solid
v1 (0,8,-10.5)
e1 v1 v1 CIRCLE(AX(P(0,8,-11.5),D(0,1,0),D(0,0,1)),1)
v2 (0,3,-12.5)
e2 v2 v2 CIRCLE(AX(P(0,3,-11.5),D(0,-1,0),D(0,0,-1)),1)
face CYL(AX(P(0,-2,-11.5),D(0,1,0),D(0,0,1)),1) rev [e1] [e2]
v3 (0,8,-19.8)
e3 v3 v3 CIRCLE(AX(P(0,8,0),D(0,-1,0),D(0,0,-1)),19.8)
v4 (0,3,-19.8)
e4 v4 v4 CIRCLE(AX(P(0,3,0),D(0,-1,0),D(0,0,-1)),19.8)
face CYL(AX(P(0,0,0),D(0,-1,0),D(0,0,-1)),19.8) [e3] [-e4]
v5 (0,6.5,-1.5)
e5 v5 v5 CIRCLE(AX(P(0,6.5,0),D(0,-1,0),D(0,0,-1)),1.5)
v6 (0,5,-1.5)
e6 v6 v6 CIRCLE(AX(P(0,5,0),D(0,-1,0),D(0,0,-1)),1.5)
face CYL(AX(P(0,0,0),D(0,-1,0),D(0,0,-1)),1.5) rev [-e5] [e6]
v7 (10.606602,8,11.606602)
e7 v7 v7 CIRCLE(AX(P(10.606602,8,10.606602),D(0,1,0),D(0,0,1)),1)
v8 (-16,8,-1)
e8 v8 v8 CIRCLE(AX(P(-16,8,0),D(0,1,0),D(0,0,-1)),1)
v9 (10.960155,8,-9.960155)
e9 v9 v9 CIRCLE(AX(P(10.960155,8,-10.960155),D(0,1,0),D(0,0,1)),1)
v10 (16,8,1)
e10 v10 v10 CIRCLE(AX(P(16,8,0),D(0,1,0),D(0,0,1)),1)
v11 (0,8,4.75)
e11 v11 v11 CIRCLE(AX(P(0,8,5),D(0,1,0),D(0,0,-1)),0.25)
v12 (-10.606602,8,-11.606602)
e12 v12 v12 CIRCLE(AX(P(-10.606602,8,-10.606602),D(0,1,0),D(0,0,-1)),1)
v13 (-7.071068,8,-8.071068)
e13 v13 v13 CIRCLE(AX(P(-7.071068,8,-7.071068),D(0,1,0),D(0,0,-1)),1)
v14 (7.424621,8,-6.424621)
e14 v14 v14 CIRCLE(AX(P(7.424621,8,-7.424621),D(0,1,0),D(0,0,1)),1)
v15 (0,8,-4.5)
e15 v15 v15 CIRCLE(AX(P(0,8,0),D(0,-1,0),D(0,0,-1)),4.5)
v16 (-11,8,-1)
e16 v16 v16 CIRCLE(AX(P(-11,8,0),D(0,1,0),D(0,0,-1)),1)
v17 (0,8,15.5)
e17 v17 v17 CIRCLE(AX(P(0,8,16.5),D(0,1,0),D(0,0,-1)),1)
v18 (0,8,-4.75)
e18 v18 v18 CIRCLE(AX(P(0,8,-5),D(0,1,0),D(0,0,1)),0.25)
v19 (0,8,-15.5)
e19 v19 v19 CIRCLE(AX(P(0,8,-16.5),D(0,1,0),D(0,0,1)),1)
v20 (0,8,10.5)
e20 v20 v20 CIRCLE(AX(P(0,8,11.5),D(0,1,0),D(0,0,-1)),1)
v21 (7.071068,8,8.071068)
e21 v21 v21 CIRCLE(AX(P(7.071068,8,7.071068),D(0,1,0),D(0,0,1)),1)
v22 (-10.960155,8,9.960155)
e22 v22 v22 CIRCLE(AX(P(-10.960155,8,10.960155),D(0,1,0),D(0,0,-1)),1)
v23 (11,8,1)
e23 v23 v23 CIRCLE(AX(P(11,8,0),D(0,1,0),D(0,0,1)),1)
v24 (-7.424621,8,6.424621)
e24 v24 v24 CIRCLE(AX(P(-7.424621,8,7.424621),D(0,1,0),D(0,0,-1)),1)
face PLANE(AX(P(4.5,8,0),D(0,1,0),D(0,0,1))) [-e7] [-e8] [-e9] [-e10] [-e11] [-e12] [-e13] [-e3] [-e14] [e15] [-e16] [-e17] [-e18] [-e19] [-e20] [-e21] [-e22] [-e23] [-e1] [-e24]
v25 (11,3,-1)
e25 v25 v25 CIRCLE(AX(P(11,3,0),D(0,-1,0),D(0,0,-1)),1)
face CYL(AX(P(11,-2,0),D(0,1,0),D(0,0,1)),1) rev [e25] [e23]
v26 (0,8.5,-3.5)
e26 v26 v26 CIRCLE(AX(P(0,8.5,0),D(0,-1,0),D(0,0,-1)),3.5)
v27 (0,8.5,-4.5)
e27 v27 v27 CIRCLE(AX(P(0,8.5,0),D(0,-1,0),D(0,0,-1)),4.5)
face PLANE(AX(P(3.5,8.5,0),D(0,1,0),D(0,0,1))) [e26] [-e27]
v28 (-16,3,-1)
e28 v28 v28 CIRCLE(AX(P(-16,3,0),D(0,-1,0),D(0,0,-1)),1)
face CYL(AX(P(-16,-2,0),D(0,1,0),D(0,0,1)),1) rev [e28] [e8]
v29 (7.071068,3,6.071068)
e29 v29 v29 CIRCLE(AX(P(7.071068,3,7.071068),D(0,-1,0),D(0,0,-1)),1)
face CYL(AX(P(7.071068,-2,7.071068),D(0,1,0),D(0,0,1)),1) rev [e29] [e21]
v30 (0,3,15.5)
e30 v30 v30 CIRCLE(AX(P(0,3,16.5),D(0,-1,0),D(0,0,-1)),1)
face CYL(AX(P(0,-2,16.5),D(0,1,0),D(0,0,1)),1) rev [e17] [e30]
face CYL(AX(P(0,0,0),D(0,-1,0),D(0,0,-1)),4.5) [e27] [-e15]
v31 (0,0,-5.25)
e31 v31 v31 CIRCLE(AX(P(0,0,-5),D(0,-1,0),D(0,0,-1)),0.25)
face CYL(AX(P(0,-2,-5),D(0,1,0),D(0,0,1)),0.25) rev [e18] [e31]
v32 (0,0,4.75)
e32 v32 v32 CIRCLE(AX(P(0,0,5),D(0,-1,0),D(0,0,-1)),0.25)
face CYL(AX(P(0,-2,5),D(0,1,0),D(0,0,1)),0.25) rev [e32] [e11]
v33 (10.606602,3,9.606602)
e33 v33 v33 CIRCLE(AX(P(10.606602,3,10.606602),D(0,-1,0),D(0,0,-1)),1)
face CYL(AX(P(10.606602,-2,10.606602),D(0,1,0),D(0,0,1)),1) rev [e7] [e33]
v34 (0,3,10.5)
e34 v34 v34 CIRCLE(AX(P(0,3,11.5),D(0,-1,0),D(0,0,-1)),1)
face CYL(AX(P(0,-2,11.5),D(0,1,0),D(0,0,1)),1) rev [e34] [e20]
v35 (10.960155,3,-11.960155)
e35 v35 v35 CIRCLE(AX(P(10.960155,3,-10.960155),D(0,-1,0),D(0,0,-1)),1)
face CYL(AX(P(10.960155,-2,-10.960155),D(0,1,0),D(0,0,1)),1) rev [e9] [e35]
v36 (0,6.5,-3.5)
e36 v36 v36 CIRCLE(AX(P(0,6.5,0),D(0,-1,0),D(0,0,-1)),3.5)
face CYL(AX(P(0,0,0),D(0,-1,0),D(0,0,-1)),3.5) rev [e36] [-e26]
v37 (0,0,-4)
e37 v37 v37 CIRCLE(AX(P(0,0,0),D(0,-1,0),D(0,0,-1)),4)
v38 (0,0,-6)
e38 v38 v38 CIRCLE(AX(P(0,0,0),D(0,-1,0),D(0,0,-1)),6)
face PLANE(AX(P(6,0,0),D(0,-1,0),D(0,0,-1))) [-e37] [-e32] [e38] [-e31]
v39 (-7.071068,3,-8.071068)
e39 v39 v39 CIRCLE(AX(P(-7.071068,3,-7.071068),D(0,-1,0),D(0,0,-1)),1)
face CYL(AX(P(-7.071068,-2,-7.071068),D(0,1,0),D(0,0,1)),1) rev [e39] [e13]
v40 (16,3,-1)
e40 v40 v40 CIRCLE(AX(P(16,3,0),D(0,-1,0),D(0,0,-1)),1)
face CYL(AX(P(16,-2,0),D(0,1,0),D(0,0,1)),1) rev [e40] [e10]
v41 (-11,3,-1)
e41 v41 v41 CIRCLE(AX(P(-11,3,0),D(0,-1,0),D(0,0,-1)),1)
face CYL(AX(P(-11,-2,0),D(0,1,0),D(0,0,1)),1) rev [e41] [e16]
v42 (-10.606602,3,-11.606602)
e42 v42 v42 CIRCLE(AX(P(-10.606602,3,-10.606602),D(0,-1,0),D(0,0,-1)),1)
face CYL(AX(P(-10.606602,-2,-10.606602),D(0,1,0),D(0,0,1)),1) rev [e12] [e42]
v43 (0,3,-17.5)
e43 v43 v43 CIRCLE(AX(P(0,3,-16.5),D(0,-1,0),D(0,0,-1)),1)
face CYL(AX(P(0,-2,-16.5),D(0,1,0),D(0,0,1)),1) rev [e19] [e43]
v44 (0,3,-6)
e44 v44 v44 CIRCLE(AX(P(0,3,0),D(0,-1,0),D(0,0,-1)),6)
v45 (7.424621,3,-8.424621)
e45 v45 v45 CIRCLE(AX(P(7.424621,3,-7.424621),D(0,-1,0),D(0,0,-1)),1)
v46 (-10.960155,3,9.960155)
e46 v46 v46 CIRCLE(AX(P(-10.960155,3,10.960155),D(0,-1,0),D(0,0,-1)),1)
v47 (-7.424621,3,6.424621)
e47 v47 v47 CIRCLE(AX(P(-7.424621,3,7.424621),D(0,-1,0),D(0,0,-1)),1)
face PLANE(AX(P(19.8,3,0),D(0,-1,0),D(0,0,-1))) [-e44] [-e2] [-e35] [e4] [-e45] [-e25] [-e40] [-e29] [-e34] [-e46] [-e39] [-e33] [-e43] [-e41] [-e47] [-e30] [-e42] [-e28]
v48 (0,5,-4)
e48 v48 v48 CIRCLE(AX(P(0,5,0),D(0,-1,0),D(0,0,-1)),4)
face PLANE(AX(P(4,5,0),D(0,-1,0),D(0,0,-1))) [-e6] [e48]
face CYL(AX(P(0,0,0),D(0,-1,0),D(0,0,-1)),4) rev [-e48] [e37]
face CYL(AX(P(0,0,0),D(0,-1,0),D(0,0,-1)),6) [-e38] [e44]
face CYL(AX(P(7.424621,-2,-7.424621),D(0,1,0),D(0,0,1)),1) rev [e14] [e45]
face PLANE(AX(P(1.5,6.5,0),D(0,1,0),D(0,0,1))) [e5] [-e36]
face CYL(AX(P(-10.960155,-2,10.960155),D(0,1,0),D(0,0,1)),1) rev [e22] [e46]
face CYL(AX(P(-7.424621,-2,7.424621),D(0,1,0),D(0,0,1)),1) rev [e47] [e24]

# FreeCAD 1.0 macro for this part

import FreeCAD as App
import Part
import Sketcher
from FreeCAD import Vector

doc = App.newDocument("Part")
body = doc.addObject("PartDesign::Body", "Body")

# Sketch on XY plane
sketch1 = doc.addObject("Sketcher::SketchObject", "Sketch")
body.addObject(sketch1)
sketch1.AttachmentSupport = (doc.XY_Plane, [""])
sketch1.MapMode = "FlatFace"
sketch1.addGeometry([
    Part.LineSegment(Vector(4, 5, 0), Vector(4, 0, 0)),  # 0
    Part.LineSegment(Vector(4, 0, 0), Vector(6, 0, 0)),  # 1
    Part.LineSegment(Vector(6, 0, 0), Vector(6, 3, 0)),  # 2
    Part.LineSegment(Vector(6, 3, 0), Vector(19.8, 3, 0)),  # 3
    Part.LineSegment(Vector(19.8, 3, 0), Vector(19.8, 8, 0)),  # 4
    Part.LineSegment(Vector(19.8, 8, 0), Vector(4.5, 8, 0)),  # 5
    Part.LineSegment(Vector(4.5, 8, 0), Vector(4.5, 8.5, 0)),  # 6
    Part.LineSegment(Vector(4.5, 8.5, 0), Vector(3.5, 8.5, 0)),  # 7
    Part.LineSegment(Vector(3.5, 8.5, 0), Vector(3.5, 6.5, 0)),  # 8
    Part.LineSegment(Vector(3.5, 6.5, 0), Vector(1.5, 6.5, 0)),  # 9
    Part.LineSegment(Vector(1.5, 6.5, 0), Vector(1.5, 5, 0)),  # 10
    Part.LineSegment(Vector(1.5, 5, 0), Vector(4, 5, 0)),  # 11
], False)
sketch1.addConstraint([
    Sketcher.Constraint("Coincident", 0, 2, 1, 1),
    Sketcher.Constraint("Coincident", 1, 2, 2, 1),
    Sketcher.Constraint("Coincident", 2, 2, 3, 1),
    Sketcher.Constraint("Coincident", 3, 2, 4, 1),
    Sketcher.Constraint("Coincident", 4, 2, 5, 1),
    Sketcher.Constraint("Coincident", 5, 2, 6, 1),
    Sketcher.Constraint("Coincident", 6, 2, 7, 1),
    Sketcher.Constraint("Coincident", 7, 2, 8, 1),
    Sketcher.Constraint("Coincident", 8, 2, 9, 1),
    Sketcher.Constraint("Coincident", 9, 2, 10, 1),
    Sketcher.Constraint("Coincident", 10, 2, 11, 1),
    Sketcher.Constraint("Coincident", 11, 2, 0, 1),
    Sketcher.Constraint("Vertical", 0),
    Sketcher.Constraint("Horizontal", 1),
    Sketcher.Constraint("Vertical", 2),
    Sketcher.Constraint("Horizontal", 3),
    Sketcher.Constraint("Vertical", 4),
    Sketcher.Constraint("Horizontal", 5),
    Sketcher.Constraint("Vertical", 6),
    Sketcher.Constraint("Horizontal", 7),
    Sketcher.Constraint("Vertical", 8),
    Sketcher.Constraint("Horizontal", 9),
    Sketcher.Constraint("Vertical", 10),
    Sketcher.Constraint("Horizontal", 11),
    Sketcher.Constraint("PointOnObject", 0, 2, -1),
    Sketcher.Constraint("Equal", 1, 9),
    Sketcher.Constraint("Equal", 0, 4),
    Sketcher.Constraint("Equal", 9, 8),
    Sketcher.Constraint("DistanceX", 1, 1, 1, 2, 2.0),
    Sketcher.Constraint("DistanceX", 7, 2, 7, 1, 1.0),
    Sketcher.Constraint("DistanceY", 0, 2, 0, 1, 5.0),
    Sketcher.Constraint("DistanceY", 2, 1, 2, 2, 3.0),
    Sketcher.Constraint("DistanceX", 3, 1, 3, 2, 13.8),
    Sketcher.Constraint("DistanceX", 5, 2, 5, 1, 15.3),
    Sketcher.Constraint("DistanceY", 6, 1, 6, 2, 0.5),
    Sketcher.Constraint("DistanceX", -1, 1, 0, 2, 4.0),
])
revolution = doc.addObject("PartDesign::Revolution", "Revolution")
body.addObject(revolution)
revolution.Profile = sketch1
revolution.ReferenceAxis = (sketch1, ["V_Axis"])
revolution.Angle = 360

# Sketch on XZ plane
sketch2 = doc.addObject("Sketcher::SketchObject", "Sketch001")
body.addObject(sketch2)
sketch2.AttachmentSupport = (doc.XZ_Plane, [""])
sketch2.MapMode = "FlatFace"
sketch2.AttachmentOffset = App.Placement(Vector(0, 0, -8), App.Rotation())
sketch2.addGeometry([
    Part.Circle(Vector(0, -16.5, 0), Vector(0, 0, 1), 1),  # 0
    Part.Circle(Vector(0, -11.5, 0), Vector(0, 0, 1), 1),  # 1
    Part.Circle(Vector(0, -5, 0), Vector(0, 0, 1), 0.25),  # 2
    Part.Circle(Vector(7.424621, -7.424621, 0), Vector(0, 0, 1), 1),  # 3
    Part.Circle(Vector(10.960155, -10.960155, 0), Vector(0, 0, 1), 1),  # 4
    Part.Circle(Vector(11, 0, 0), Vector(0, 0, 1), 1),  # 5
    Part.Circle(Vector(16, 0, 0), Vector(0, 0, 1), 1),  # 6
    Part.Circle(Vector(10.606602, 10.606602, 0), Vector(0, 0, 1), 1),  # 7
    Part.Circle(Vector(7.071068, 7.071068, 0), Vector(0, 0, 1), 1),  # 8
], False)
sketch2.addConstraint([
    Sketcher.Constraint("Equal", 0, 1),
    Sketcher.Constraint("Equal", 1, 3),
    Sketcher.Constraint("Equal", 3, 4),
    Sketcher.Constraint("Equal", 4, 5),
    Sketcher.Constraint("Equal", 5, 6),
    Sketcher.Constraint("Equal", 6, 7),
    Sketcher.Constraint("Equal", 7, 8),
    Sketcher.Constraint("PointOnObject", 0, 3, -2),
    Sketcher.Constraint("PointOnObject", 1, 3, -2),
    Sketcher.Constraint("PointOnObject", 2, 3, -2),
    Sketcher.Constraint("PointOnObject", 5, 3, -1),
    Sketcher.Constraint("PointOnObject", 6, 3, -1),
    Sketcher.Constraint("Diameter", 0, 2.0),
    Sketcher.Constraint("Diameter", 2, 0.5),
    Sketcher.Constraint("DistanceY", 2, 3, -1, 1, 5.0),
    Sketcher.Constraint("DistanceX", -1, 1, 5, 3, 11.0),
    Sketcher.Constraint("DistanceX", -1, 1, 6, 3, 16.0),
    Sketcher.Constraint("DistanceY", 0, 3, 1, 3, 5.0),
    Sketcher.Constraint("DistanceY", 0, 3, -1, 1, 16.5),
    Sketcher.Constraint("DistanceX", -1, 1, 7, 3, 10.606602),
    Sketcher.Constraint("DistanceY", -1, 1, 7, 3, 10.606602),
    Sketcher.Constraint("DistanceX", -1, 1, 3, 3, 7.424621),
    Sketcher.Constraint("DistanceY", 3, 3, -1, 1, 7.424621),
    Sketcher.Constraint("DistanceY", 3, 3, 8, 3, 14.495689),
    Sketcher.Constraint("DistanceX", -1, 1, 4, 3, 10.960155),
    Sketcher.Constraint("DistanceY", 4, 3, -1, 1, 10.960155),
    Sketcher.Constraint("DistanceX", -1, 1, 8, 3, 7.071068),
])
pocket1 = doc.addObject("PartDesign::Pocket", "Pocket")
body.addObject(pocket1)
pocket1.Profile = sketch2
pocket1.Length = 10
pocket1.Reversed = True
doc.recompute()

polarpattern = doc.addObject("PartDesign::PolarPattern", "PolarPattern")
body.addObject(polarpattern)
polarpattern.Originals = [pocket1]
polarpattern.Axis = (doc.Y_Axis, [""])
polarpattern.Angle = 360
polarpattern.Occurrences = 2
body.Tip = polarpattern

doc.recompute()
